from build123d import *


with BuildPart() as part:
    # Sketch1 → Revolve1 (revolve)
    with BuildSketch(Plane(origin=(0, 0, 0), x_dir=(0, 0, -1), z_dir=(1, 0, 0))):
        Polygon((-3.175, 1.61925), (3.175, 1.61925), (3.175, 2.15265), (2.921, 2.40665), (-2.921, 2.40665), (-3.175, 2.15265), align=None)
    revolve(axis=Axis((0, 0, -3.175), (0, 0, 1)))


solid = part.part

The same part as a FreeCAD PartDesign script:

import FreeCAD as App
import Part
import Sketcher

V = App.Vector
Q = App.Units.Quantity

doc = App.newDocument("Part")
body = doc.addObject("PartDesign::Body", "Body")

# Sketch on YZ plane
sketch1 = doc.addObject("Sketcher::SketchObject", "Sketch")
body.addObject(sketch1)
sketch1.AttachmentSupport = (doc.YZ_Plane, [""])
sketch1.MapMode = "FlatFace"
sketch1.addGeometry([
    Part.LineSegment(V(1.62, 3.17, 0), V(1.62, -3.17, 0)),  # 0
    Part.LineSegment(V(1.62, -3.17, 0), V(2.15, -3.17, 0)),  # 1
    Part.LineSegment(V(2.15, -3.17, 0), V(2.41, -2.92, 0)),  # 2
    Part.LineSegment(V(2.41, -2.92, 0), V(2.41, 2.92, 0)),  # 3
    Part.LineSegment(V(2.41, 2.92, 0), V(2.15, 3.17, 0)),  # 4
    Part.LineSegment(V(2.15, 3.17, 0), V(1.62, 3.17, 0)),  # 5
], False)
sketch1.addConstraint([
    Sketcher.Constraint("Coincident", 0, 2, 1, 1),
    Sketcher.Constraint("Coincident", 1, 2, 2, 1),
    Sketcher.Constraint("Coincident", 2, 2, 3, 1),
    Sketcher.Constraint("Coincident", 3, 2, 4, 1),
    Sketcher.Constraint("Coincident", 4, 2, 5, 1),
    Sketcher.Constraint("Coincident", 5, 2, 0, 1),
    Sketcher.Constraint("Vertical", 0),
    Sketcher.Constraint("Horizontal", 1),
    Sketcher.Constraint("Vertical", 3),
    Sketcher.Constraint("Horizontal", 5),
    Sketcher.Constraint("Symmetric", 1, 2, 4, 2, -1),
    Sketcher.Constraint("Perpendicular", 2, 4),
    Sketcher.Constraint("Equal", 2, 4),
    Sketcher.Constraint("DistanceY", 0, 2, 0, 1, Q("0.25 in")),
    Sketcher.Constraint("DistanceY", 3, 1, 3, 2, Q("0.23 in")),
    Sketcher.Constraint("DistanceX", 1, 1, 1, 2, Q("0.021 in")),
    Sketcher.Constraint("DistanceX", -1, 1, 0, 2, Q("1.61925 mm")),
])
revolution = doc.addObject("PartDesign::Revolution", "Revolution")
body.addObject(revolution)
revolution.Profile = sketch1
revolution.ReferenceAxis = (sketch1, ["V_Axis"])
revolution.Angle = 360

doc.recompute()
